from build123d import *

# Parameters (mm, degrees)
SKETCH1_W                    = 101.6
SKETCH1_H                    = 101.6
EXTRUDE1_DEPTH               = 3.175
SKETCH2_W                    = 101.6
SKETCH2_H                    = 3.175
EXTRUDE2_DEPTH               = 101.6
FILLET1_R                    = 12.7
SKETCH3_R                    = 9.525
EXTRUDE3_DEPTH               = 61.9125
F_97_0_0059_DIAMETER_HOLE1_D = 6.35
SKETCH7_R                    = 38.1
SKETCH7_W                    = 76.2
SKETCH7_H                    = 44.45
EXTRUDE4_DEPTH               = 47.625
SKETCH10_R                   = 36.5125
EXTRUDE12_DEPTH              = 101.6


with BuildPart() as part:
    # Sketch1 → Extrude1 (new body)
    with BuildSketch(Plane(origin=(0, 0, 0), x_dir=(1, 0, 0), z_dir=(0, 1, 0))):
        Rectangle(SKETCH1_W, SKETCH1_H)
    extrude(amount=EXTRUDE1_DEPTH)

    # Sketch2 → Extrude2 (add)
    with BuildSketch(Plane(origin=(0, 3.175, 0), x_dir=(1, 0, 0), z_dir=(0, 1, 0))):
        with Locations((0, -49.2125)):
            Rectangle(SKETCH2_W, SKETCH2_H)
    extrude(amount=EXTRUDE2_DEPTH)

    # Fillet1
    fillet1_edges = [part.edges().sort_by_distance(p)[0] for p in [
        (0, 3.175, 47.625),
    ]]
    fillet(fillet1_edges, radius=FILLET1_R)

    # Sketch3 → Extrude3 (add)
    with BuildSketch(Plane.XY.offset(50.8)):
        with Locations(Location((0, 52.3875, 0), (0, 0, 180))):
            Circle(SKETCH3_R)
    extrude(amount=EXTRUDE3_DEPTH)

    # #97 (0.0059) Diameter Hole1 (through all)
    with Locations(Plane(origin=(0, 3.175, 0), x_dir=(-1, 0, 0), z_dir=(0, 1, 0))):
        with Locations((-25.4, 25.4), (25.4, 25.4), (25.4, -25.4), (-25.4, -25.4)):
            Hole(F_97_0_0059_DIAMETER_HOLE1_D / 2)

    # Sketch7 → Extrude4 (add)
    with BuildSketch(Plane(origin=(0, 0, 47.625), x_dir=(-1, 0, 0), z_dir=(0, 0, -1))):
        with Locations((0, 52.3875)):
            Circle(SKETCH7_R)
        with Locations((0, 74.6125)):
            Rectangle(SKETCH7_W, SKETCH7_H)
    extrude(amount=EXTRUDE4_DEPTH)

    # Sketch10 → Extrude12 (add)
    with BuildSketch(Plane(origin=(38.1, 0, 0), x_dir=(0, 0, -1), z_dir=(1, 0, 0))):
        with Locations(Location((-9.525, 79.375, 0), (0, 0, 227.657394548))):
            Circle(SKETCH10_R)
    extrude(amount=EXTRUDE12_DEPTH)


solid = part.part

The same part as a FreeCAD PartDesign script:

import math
import FreeCAD as App
import Part
import Sketcher
Q = App.Units.Quantity


def edges_at(feature, points):
    """Names of the edges that pass closest to the given points."""
    edges = feature.Shape.Edges
    near = lambda p: min(range(len(edges)), key=lambda i: edges[i].distToShape(Part.Vertex(*p))[0])
    return sorted({f"Edge{near(p) + 1}" for p in points})

doc = App.newDocument("Part")
params = doc.addObject("Spreadsheet::Sheet", "Params")
for row, (alias, value) in enumerate([
    ("sketch1_width", "4 in"),
    ("pad1_length", "0.125 in"),
    ("sketch2_width", "4 in"),
    ("sketch2_height", "0.125 in"),
    ("pad2_length", "4 in"),
    ("fillet_radius", "0.5 in"),
    ("sketch3_diameter", "0.75 in"),
    ("pad3_length", "2.4375 in"),
    ("sketch4_diameter", "0.25 in"),
    ("hole_diameter", "0.25 in"),
    ("sketch5_radius", "1.5 in"),
    ("sketch5_height", "1.75 in"),
    ("pad4_length", "1.875 in"),
    ("sketch6_diameter", "2.875 in"),
    ("pad5_length", "4 in"),
], start=1):
    params.set(f"A{row}", alias)
    params.set(f"B{row}", "=" + value)
    params.setAlias(f"B{row}", alias)

body = doc.addObject("PartDesign::Body", "Body")

# Sketch on XZ plane
sketch1 = doc.addObject("Sketcher::SketchObject", "Sketch")
body.addObject(sketch1)
sketch1.AttachmentSupport = (doc.XZ_Plane, [""])
sketch1.MapMode = "FlatFace"
sketch1.addGeometry(Part.LineSegment(App.Vector(-51, -51, 0), App.Vector(-51, 51, 0)), False)
sketch1.addGeometry(Part.LineSegment(App.Vector(-51, 51, 0), App.Vector(51, 51, 0)), False)
sketch1.addGeometry(Part.LineSegment(App.Vector(51, 51, 0), App.Vector(51, -51, 0)), False)
sketch1.addGeometry(Part.LineSegment(App.Vector(51, -51, 0), App.Vector(-51, -51, 0)), False)
sketch1.addConstraint(Sketcher.Constraint("Coincident", 0, 2, 1, 1))
sketch1.addConstraint(Sketcher.Constraint("Coincident", 1, 2, 2, 1))
sketch1.addConstraint(Sketcher.Constraint("Coincident", 2, 2, 3, 1))
sketch1.addConstraint(Sketcher.Constraint("Coincident", 3, 2, 0, 1))
sketch1.addConstraint(Sketcher.Constraint("Vertical", 0))
sketch1.addConstraint(Sketcher.Constraint("Horizontal", 1))
sketch1.addConstraint(Sketcher.Constraint("Vertical", 2))
sketch1.addConstraint(Sketcher.Constraint("Horizontal", 3))
sketch1.addConstraint(Sketcher.Constraint("Symmetric", 0, 2, 2, 2, -1, 1))
sketch1.addConstraint(Sketcher.Constraint("Equal", 3, 0))
sketch1.addConstraint(Sketcher.Constraint("DistanceX", 1, 1, 1, 2, Q("4 in")))
sketch1.setExpression("Constraints[10]", "Params.sketch1_width")
pad1 = doc.addObject("PartDesign::Pad", "Pad")
body.addObject(pad1)
pad1.Profile = sketch1
pad1.setExpression("Length", "Params.pad1_length")
pad1.Reversed = True

# Sketch on XZ plane
sketch2 = doc.addObject("Sketcher::SketchObject", "Sketch001")
body.addObject(sketch2)
sketch2.AttachmentSupport = (doc.XZ_Plane, [""])
sketch2.MapMode = "FlatFace"
sketch2.AttachmentOffset = App.Placement(App.Vector(0, 0, -0.125 * 25.4), App.Rotation())
sketch2.addGeometry(Part.LineSegment(App.Vector(-50.8, 47.6, 0), App.Vector(-50.8, 50.8, 0)), False)
sketch2.addGeometry(Part.LineSegment(App.Vector(-50.8, 50.8, 0), App.Vector(50.8, 50.8, 0)), False)
sketch2.addGeometry(Part.LineSegment(App.Vector(50.8, 50.8, 0), App.Vector(50.8, 47.6, 0)), False)
sketch2.addGeometry(Part.LineSegment(App.Vector(50.8, 47.6, 0), App.Vector(-50.8, 47.6, 0)), False)
sketch2.addConstraint(Sketcher.Constraint("Coincident", 0, 2, 1, 1))
sketch2.addConstraint(Sketcher.Constraint("Coincident", 1, 2, 2, 1))
sketch2.addConstraint(Sketcher.Constraint("Coincident", 2, 2, 3, 1))
sketch2.addConstraint(Sketcher.Constraint("Coincident", 3, 2, 0, 1))
sketch2.addConstraint(Sketcher.Constraint("Vertical", 0))
sketch2.addConstraint(Sketcher.Constraint("Horizontal", 1))
sketch2.addConstraint(Sketcher.Constraint("Vertical", 2))
sketch2.addConstraint(Sketcher.Constraint("Horizontal", 3))
sketch2.addConstraint(Sketcher.Constraint("DistanceX", 1, 1, 1, 2, Q("4 in")))
sketch2.addConstraint(Sketcher.Constraint("DistanceX", 0, 2, -1, 1, Q("2 in")))
sketch2.addConstraint(Sketcher.Constraint("DistanceY", -1, 1, 0, 2, Q("2 in")))
sketch2.addConstraint(Sketcher.Constraint("DistanceY", 0, 1, 0, 2, Q("0.125 in")))
sketch2.setExpression("Constraints[8]", "Params.sketch2_width")
sketch2.setExpression("Constraints[11]", "Params.sketch2_height")
pad2 = doc.addObject("PartDesign::Pad", "Pad001")
body.addObject(pad2)
pad2.Profile = sketch2
pad2.setExpression("Length", "Params.pad2_length")
pad2.Reversed = True
doc.recompute()

fillet = doc.addObject("PartDesign::Fillet", "Fillet")
body.addObject(fillet)
fillet.Base = (pad2, edges_at(pad2, [(0, 3.175, 47.625)]))
fillet.setExpression("Radius", "Params.fillet_radius")

# Sketch on XY plane
sketch3 = doc.addObject("Sketcher::SketchObject", "Sketch002")
body.addObject(sketch3)
sketch3.AttachmentSupport = (doc.XY_Plane, [""])
sketch3.MapMode = "FlatFace"
sketch3.AttachmentOffset = App.Placement(App.Vector(0, 0, 2 * 25.4), App.Rotation())
sketch3.addGeometry(Part.Circle(App.Vector(0, 52, 0), App.Vector(0, 0, 1), 10), False)
sketch3.addConstraint(Sketcher.Constraint("PointOnObject", 0, 3, -2))
sketch3.addConstraint(Sketcher.Constraint("Diameter", 0, Q("0.75 in")))
sketch3.addConstraint(Sketcher.Constraint("DistanceY", -1, 1, 0, 3, Q("2.0625 in")))
sketch3.setExpression("Constraints[1]", "Params.sketch3_diameter")
pad3 = doc.addObject("PartDesign::Pad", "Pad002")
body.addObject(pad3)
pad3.Profile = sketch3
pad3.setExpression("Length", "Params.pad3_length")

# Sketch on XZ plane
sketch4 = doc.addObject("Sketcher::SketchObject", "Sketch003")
body.addObject(sketch4)
sketch4.AttachmentSupport = (doc.XZ_Plane, [""])
sketch4.MapMode = "FlatFace"
sketch4.AttachmentOffset = App.Placement(App.Vector(0, 0, -0.125 * 25.4), App.Rotation())
sketch4.addGeometry(Part.Circle(App.Vector(25.4, 25.4, 0), App.Vector(0, 0, 1), 3.2), False)
sketch4.addGeometry(Part.Circle(App.Vector(-25.4, 25.4, 0), App.Vector(0, 0, 1), 3.2), False)
sketch4.addGeometry(Part.Circle(App.Vector(-25.4, -25.4, 0), App.Vector(0, 0, 1), 3.2), False)
sketch4.addGeometry(Part.Circle(App.Vector(25.4, -25.4, 0), App.Vector(0, 0, 1), 3.2), False)
sketch4.addConstraint(Sketcher.Constraint("Equal", 0, 1))
sketch4.addConstraint(Sketcher.Constraint("Equal", 1, 2))
sketch4.addConstraint(Sketcher.Constraint("Equal", 2, 3))
sketch4.addConstraint(Sketcher.Constraint("Symmetric", 0, 3, 2, 3, -1, 1))
sketch4.addConstraint(Sketcher.Constraint("Symmetric", 1, 3, 3, 3, -1, 1))
sketch4.addConstraint(Sketcher.Constraint("Symmetric", 0, 3, 1, 3, -2))
sketch4.addConstraint(Sketcher.Constraint("Diameter", 0, Q("0.25 in")))
sketch4.addConstraint(Sketcher.Constraint("DistanceX", -1, 1, 0, 3, Q("1 in")))
sketch4.addConstraint(Sketcher.Constraint("DistanceY", -1, 1, 0, 3, Q("1 in")))
sketch4.setExpression("Constraints[6]", "Params.sketch4_diameter")
doc.recompute()
hole = doc.addObject("PartDesign::Hole", "Hole")
body.addObject(hole)
hole.Profile = sketch4
hole.ThreadType = "None"
hole.setExpression("Diameter", "Params.hole_diameter")
hole.DepthType = "ThroughAll"
hole.Reversed = True

# Sketch on XY plane
sketch5 = doc.addObject("Sketcher::SketchObject", "Sketch004")
body.addObject(sketch5)
sketch5.AttachmentSupport = (doc.XY_Plane, [""])
sketch5.MapMode = "FlatFace"
sketch5.AttachmentOffset = App.Placement(App.Vector(0, 0, 1.875 * 25.4), App.Rotation())
sketch5.addGeometry(Part.ArcOfCircle(Part.Circle(App.Vector(0, 52, 0), App.Vector(0, 0, 1), 38), math.radians(180), math.radians(360)), False)
sketch5.addGeometry(Part.LineSegment(App.Vector(-38, 52, 0), App.Vector(-38, 97, 0)), False)
sketch5.addGeometry(Part.LineSegment(App.Vector(-38, 97, 0), App.Vector(38, 97, 0)), False)
sketch5.addGeometry(Part.LineSegment(App.Vector(38, 97, 0), App.Vector(38, 52, 0)), False)
sketch5.addConstraint(Sketcher.Constraint("Tangent", 0, 1, 1, 1))
sketch5.addConstraint(Sketcher.Constraint("Coincident", 1, 2, 2, 1))
sketch5.addConstraint(Sketcher.Constraint("Coincident", 2, 2, 3, 1))
sketch5.addConstraint(Sketcher.Constraint("Tangent", 3, 2, 0, 2))
sketch5.addConstraint(Sketcher.Constraint("Vertical", 1))
sketch5.addConstraint(Sketcher.Constraint("Horizontal", 2))
sketch5.addConstraint(Sketcher.Constraint("Vertical", 3))
sketch5.addConstraint(Sketcher.Constraint("PointOnObject", 0, 3, -2))
sketch5.addConstraint(Sketcher.Constraint("Radius", 0, Q("1.5 in")))
sketch5.addConstraint(Sketcher.Constraint("DistanceY", 1, 1, 1, 2, Q("1.75 in")))
sketch5.addConstraint(Sketcher.Constraint("DistanceY", -1, 1, 0, 3, Q("2.0625 in")))
sketch5.setExpression("Constraints[8]", "Params.sketch5_radius")
sketch5.setExpression("Constraints[9]", "Params.sketch5_height")
pad4 = doc.addObject("PartDesign::Pad", "Pad003")
body.addObject(pad4)
pad4.Profile = sketch5
pad4.setExpression("Length", "Params.pad4_length")
pad4.Reversed = True

# Sketch on YZ plane
sketch6 = doc.addObject("Sketcher::SketchObject", "Sketch005")
body.addObject(sketch6)
sketch6.AttachmentSupport = (doc.YZ_Plane, [""])
sketch6.MapMode = "FlatFace"
sketch6.AttachmentOffset = App.Placement(App.Vector(0, 0, 1.5 * 25.4), App.Rotation())
sketch6.addGeometry(Part.Circle(App.Vector(79, 10, 0), App.Vector(0, 0, 1), 37), False)
sketch6.addConstraint(Sketcher.Constraint("Diameter", 0, Q("2.875 in")))
sketch6.addConstraint(Sketcher.Constraint("DistanceX", -1, 1, 0, 3, Q("3.125 in")))
sketch6.addConstraint(Sketcher.Constraint("DistanceY", -1, 1, 0, 3, Q("0.375 in")))
sketch6.setExpression("Constraints[0]", "Params.sketch6_diameter")
pad5 = doc.addObject("PartDesign::Pad", "Pad004")
body.addObject(pad5)
pad5.Profile = sketch6
pad5.setExpression("Length", "Params.pad5_length")

doc.recompute()
